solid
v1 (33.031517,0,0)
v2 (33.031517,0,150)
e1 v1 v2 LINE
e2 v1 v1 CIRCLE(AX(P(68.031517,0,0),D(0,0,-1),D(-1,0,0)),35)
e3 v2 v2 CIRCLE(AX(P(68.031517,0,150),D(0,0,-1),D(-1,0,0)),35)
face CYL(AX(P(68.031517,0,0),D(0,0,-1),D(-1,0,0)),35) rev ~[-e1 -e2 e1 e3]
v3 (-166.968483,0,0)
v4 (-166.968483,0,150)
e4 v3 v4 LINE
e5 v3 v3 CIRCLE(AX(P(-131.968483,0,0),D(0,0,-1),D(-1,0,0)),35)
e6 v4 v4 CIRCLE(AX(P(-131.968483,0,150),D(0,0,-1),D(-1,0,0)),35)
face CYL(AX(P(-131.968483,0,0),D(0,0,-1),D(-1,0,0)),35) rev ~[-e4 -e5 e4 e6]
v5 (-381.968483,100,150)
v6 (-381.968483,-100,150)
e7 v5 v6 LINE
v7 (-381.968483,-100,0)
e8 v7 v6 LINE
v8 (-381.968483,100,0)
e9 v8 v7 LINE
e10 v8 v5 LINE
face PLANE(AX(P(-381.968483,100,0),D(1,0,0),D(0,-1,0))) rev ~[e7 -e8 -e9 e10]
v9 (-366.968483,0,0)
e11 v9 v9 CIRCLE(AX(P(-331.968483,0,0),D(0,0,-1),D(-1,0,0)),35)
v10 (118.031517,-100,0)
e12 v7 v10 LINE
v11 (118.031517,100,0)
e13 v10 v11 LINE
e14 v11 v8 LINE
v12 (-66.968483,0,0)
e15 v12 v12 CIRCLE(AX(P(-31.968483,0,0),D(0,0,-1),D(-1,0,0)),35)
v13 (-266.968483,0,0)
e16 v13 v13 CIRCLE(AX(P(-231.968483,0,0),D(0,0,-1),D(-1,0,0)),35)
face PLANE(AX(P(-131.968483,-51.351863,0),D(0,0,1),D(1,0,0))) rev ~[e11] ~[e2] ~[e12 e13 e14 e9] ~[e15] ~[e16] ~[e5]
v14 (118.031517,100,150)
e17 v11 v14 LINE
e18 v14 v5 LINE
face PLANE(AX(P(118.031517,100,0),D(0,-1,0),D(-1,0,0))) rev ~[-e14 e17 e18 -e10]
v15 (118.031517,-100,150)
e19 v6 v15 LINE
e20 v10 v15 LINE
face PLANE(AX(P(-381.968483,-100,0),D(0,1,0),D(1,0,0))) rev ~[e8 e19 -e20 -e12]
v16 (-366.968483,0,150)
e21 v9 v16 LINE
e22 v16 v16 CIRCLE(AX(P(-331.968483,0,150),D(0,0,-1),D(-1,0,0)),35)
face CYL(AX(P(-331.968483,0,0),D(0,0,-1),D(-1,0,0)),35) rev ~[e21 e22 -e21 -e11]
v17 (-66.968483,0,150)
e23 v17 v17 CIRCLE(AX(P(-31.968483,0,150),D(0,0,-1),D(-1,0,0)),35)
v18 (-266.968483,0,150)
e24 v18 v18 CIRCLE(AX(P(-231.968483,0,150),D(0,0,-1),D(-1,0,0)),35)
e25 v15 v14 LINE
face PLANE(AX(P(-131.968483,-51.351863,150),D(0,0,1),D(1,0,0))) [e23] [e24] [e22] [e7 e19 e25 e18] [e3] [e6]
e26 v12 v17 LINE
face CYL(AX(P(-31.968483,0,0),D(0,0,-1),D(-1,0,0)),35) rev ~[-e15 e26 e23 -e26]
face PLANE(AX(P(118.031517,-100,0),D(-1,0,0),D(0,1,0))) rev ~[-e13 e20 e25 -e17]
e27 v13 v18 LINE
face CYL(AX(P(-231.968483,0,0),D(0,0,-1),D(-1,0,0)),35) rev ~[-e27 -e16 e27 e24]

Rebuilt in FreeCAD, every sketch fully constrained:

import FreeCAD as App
import Part
import Sketcher
Q = App.Units.Quantity

doc = App.newDocument("Part")
params = doc.addObject("Spreadsheet::Sheet", "Params")
for row, (alias, value) in enumerate([
    ("sketch1_diameter", "70 mm"),
    ("sketch1_width", "500 mm"),
    ("sketch1_height", "200 mm"),
    ("pad1_length", "150 mm"),
], start=1):
    params.set(f"A{row}", alias)
    params.set(f"B{row}", "=" + value)
    params.setAlias(f"B{row}", alias)

body = doc.addObject("PartDesign::Body", "Body")

sketch1 = body.newObject("Sketcher::SketchObject", "Sketch")
sketch1.AttachmentSupport = (doc.getObject("XY_Plane"), [""])
sketch1.MapMode = "FlatFace"
sketch1.addGeometry(Part.LineSegment(App.Vector(-382, -100, 0), App.Vector(118, -100, 0)), False)
sketch1.addGeometry(Part.LineSegment(App.Vector(118, -100, 0), App.Vector(118, 100, 0)), False)
sketch1.addGeometry(Part.LineSegment(App.Vector(118, 100, 0), App.Vector(-382, 100, 0)), False)
sketch1.addGeometry(Part.LineSegment(App.Vector(-382, 100, 0), App.Vector(-382, -100, 0)), False)
sketch1.addGeometry(Part.Circle(App.Vector(68, 0, 0), App.Vector(0, 0, 1), 35), False)
sketch1.addGeometry(Part.Circle(App.Vector(-32, 0, 0), App.Vector(0, 0, 1), 35), False)
sketch1.addGeometry(Part.Circle(App.Vector(-132, 0, 0), App.Vector(0, 0, 1), 35), False)
sketch1.addGeometry(Part.Circle(App.Vector(-232, 0, 0), App.Vector(0, 0, 1), 35), False)
sketch1.addGeometry(Part.Circle(App.Vector(-332, 0, 0), App.Vector(0, 0, 1), 35), False)
sketch1.addConstraint(Sketcher.Constraint("Coincident", 0, 2, 1, 1))
sketch1.addConstraint(Sketcher.Constraint("Coincident", 1, 2, 2, 1))
sketch1.addConstraint(Sketcher.Constraint("Coincident", 2, 2, 3, 1))
sketch1.addConstraint(Sketcher.Constraint("Coincident", 3, 2, 0, 1))
sketch1.addConstraint(Sketcher.Constraint("Horizontal", 0))
sketch1.addConstraint(Sketcher.Constraint("Vertical", 1))
sketch1.addConstraint(Sketcher.Constraint("Horizontal", 2))
sketch1.addConstraint(Sketcher.Constraint("Vertical", 3))
sketch1.addConstraint(Sketcher.Constraint("Equal", 4, 5))
sketch1.addConstraint(Sketcher.Constraint("Equal", 5, 6))
sketch1.addConstraint(Sketcher.Constraint("Equal", 6, 7))
sketch1.addConstraint(Sketcher.Constraint("Equal", 7, 8))
sketch1.addConstraint(Sketcher.Constraint("PointOnObject", 4, 3, -1))
sketch1.addConstraint(Sketcher.Constraint("PointOnObject", 5, 3, -1))
sketch1.addConstraint(Sketcher.Constraint("PointOnObject", 6, 3, -1))
sketch1.addConstraint(Sketcher.Constraint("PointOnObject", 7, 3, -1))
sketch1.addConstraint(Sketcher.Constraint("PointOnObject", 8, 3, -1))
sketch1.addConstraint(Sketcher.Constraint("Diameter", 4, Q("70 mm")))
sketch1.addConstraint(Sketcher.Constraint("DistanceX", 0, 1, 0, 2, Q("500 mm")))
sketch1.addConstraint(Sketcher.Constraint("DistanceY", 1, 1, 1, 2, Q("200 mm")))
sketch1.addConstraint(Sketcher.Constraint("DistanceY", 0, 2, -1, 1, Q("100 mm")))
sketch1.addConstraint(Sketcher.Constraint("DistanceX", 5, 3, 4, 3, Q("100 mm")))
sketch1.addConstraint(Sketcher.Constraint("DistanceX", 6, 3, 5, 3, Q("100 mm")))
sketch1.addConstraint(Sketcher.Constraint("DistanceX", 7, 3, 6, 3, Q("100 mm")))
sketch1.addConstraint(Sketcher.Constraint("DistanceX", 8, 3, 7, 3, Q("100 mm")))
sketch1.addConstraint(Sketcher.Constraint("DistanceX", 4, 3, 0, 2, Q("50 mm")))
sketch1.addConstraint(Sketcher.Constraint("DistanceX", -1, 1, 4, 3, Q("68.031517 mm")))
sketch1.setExpression("Constraints[17]", "Params.sketch1_diameter")
sketch1.setExpression("Constraints[18]", "Params.sketch1_width")
sketch1.setExpression("Constraints[19]", "Params.sketch1_height")
pad1 = body.newObject("PartDesign::Pad", "Pad")
pad1.Profile = sketch1
pad1.setExpression("Length", "Params.pad1_length")

doc.recompute()
